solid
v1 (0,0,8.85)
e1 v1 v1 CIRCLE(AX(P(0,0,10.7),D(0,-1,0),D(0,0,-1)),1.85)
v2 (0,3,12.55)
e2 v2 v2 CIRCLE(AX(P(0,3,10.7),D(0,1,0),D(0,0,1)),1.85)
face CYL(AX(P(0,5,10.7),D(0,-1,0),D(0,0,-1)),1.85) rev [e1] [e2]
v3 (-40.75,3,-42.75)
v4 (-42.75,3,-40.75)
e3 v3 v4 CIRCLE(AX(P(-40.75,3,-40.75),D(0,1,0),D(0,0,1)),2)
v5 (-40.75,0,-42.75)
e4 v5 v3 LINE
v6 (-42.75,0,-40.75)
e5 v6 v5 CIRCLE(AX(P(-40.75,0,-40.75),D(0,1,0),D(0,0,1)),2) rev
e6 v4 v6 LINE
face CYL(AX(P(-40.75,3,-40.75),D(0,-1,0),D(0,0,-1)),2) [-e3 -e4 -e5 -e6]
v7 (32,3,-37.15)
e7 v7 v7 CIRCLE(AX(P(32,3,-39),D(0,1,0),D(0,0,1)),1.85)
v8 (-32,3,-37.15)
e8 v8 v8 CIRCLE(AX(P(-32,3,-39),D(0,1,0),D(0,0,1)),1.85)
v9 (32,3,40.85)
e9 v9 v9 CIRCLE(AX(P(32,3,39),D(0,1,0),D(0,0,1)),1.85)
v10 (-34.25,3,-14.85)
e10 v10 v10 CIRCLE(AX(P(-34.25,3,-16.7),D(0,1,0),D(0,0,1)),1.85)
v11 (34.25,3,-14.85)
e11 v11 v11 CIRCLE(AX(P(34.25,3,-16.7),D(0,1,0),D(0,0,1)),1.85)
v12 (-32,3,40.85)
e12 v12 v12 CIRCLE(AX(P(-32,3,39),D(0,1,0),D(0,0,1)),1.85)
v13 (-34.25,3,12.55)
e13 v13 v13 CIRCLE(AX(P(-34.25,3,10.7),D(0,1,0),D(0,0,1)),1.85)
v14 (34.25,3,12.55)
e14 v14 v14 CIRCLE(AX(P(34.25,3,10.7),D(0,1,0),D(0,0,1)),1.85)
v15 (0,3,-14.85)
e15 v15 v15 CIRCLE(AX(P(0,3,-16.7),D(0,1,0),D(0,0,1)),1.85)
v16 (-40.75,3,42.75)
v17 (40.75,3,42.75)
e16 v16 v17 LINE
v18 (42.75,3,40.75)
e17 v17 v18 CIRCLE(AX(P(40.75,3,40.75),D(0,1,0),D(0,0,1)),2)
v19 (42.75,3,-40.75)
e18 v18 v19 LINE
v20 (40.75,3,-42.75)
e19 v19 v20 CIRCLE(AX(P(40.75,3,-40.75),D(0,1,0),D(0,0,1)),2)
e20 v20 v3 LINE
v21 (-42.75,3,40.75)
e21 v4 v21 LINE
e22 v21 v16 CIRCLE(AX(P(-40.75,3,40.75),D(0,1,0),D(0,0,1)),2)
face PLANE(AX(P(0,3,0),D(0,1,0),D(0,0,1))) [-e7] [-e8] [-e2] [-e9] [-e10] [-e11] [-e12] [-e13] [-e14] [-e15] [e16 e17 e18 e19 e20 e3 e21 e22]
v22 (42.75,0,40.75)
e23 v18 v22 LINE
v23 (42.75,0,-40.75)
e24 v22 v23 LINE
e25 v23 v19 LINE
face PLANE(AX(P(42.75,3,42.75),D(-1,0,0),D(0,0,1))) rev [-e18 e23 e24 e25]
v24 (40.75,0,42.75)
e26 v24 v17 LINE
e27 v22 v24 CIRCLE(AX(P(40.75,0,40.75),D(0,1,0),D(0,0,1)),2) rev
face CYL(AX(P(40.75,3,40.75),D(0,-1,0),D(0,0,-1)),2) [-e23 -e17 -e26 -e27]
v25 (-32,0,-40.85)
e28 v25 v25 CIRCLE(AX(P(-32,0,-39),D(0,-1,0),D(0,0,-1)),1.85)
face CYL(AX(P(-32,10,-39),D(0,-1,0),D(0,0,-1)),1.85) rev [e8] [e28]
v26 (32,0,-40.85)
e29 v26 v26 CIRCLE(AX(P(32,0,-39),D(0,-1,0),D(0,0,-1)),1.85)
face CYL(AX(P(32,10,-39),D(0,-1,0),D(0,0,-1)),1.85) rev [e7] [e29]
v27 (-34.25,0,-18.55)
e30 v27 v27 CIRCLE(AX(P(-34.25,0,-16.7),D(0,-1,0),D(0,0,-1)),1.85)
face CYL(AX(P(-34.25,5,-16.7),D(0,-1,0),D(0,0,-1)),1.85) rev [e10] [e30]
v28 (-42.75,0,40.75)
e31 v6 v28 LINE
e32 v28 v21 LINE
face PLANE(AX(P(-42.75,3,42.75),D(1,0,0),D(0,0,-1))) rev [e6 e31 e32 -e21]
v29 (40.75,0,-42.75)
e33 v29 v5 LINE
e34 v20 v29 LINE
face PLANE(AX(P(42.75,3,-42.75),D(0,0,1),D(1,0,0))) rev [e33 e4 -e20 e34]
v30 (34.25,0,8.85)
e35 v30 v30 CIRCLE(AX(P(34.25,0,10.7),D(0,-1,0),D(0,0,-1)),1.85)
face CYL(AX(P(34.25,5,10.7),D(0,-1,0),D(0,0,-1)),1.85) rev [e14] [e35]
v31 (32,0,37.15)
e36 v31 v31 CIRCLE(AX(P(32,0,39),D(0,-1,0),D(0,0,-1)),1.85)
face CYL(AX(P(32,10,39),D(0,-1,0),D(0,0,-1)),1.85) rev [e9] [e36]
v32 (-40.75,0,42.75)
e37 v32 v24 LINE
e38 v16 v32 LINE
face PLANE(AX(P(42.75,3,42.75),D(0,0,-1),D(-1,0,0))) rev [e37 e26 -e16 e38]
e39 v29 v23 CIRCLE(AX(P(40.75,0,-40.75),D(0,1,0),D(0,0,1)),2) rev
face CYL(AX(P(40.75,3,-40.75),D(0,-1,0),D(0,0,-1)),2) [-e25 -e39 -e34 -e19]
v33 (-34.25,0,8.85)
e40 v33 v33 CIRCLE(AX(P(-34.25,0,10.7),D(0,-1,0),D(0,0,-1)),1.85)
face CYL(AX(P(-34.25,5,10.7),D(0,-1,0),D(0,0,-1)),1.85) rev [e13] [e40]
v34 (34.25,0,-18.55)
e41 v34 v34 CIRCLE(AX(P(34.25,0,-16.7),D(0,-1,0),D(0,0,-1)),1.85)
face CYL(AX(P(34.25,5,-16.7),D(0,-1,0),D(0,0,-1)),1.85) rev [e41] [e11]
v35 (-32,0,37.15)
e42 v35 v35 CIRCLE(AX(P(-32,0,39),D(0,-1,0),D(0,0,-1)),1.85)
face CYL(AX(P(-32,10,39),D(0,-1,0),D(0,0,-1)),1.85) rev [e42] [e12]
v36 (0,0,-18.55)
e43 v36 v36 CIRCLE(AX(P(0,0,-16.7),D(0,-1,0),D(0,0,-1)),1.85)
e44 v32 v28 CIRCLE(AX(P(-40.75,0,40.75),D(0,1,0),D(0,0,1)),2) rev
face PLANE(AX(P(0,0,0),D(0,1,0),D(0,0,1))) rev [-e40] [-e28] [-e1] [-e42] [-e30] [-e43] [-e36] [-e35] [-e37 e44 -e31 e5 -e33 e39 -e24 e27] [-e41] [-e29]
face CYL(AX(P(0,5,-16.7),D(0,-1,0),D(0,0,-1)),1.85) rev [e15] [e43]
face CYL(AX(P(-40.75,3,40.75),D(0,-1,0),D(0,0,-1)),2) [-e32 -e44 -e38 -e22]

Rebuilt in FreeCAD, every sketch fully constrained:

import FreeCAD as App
import Part
import Sketcher

V = App.Vector


def edges_at(feature, points):
    """Names of the edges that pass closest to the given points."""
    edges = feature.Shape.Edges
    near = lambda p: min(range(len(edges)), key=lambda i: edges[i].distToShape(Part.Vertex(*p))[0])
    return sorted({f"Edge{near(p) + 1}" for p in points})

doc = App.newDocument("Part")
body = doc.addObject("PartDesign::Body", "Body")

# Sketch on XZ plane
sketch1 = body.newObject("Sketcher::SketchObject", "Sketch")
sketch1.AttachmentSupport = (doc.getObject("XZ_Plane"), [""])
sketch1.MapMode = "FlatFace"
sketch1.addGeometry([
    Part.LineSegment(V(-43, -43, 0), V(-43, 43, 0)),
    Part.LineSegment(V(-43, 43, 0), V(43, 43, 0)),
    Part.LineSegment(V(43, 43, 0), V(43, -43, 0)),
    Part.LineSegment(V(43, -43, 0), V(-43, -43, 0)),
], False)
sketch1.addConstraint([
    Sketcher.Constraint("Coincident", 0, 2, 1, 1),
    Sketcher.Constraint("Coincident", 1, 2, 2, 1),
    Sketcher.Constraint("Coincident", 2, 2, 3, 1),
    Sketcher.Constraint("Coincident", 3, 2, 0, 1),
    Sketcher.Constraint("Vertical", 0),
    Sketcher.Constraint("Horizontal", 1),
    Sketcher.Constraint("Vertical", 2),
    Sketcher.Constraint("Horizontal", 3),
    Sketcher.Constraint("Symmetric", 0, 2, 2, 2, -1, 1),
    Sketcher.Constraint("Equal", 3, 0),
    Sketcher.Constraint("DistanceX", 1, 1, 1, 2, 85.5),
])
pad1 = body.newObject("PartDesign::Pad", "Pad")
pad1.Profile = sketch1
pad1.Length = 3
pad1.Reversed = True
doc.recompute()

fillet = body.newObject("PartDesign::Fillet", "Fillet")
fillet.Base = (pad1, edges_at(pad1, [
    (-42.75, 1.5, -42.75),
    (42.75, 1.5, -42.75),
    (42.75, 1.5, 42.75),
    (-42.75, 1.5, 42.75),
]))
fillet.Radius = 2

# Sketch on XZ plane
sketch2 = body.newObject("Sketcher::SketchObject", "Sketch001")
sketch2.AttachmentSupport = (doc.getObject("XZ_Plane"), [""])
sketch2.MapMode = "FlatFace"
sketch2.addGeometry([
    Part.Circle(V(-32, -39, 0), V(0, 0, 1), 1.9),
    Part.Circle(V(32, -39, 0), V(0, 0, 1), 1.9),
    Part.Circle(V(-32, 39, 0), V(0, 0, 1), 1.9),
    Part.Circle(V(32, 39, 0), V(0, 0, 1), 1.9),
], False)
sketch2.addConstraint([
    Sketcher.Constraint("Equal", 0, 1),
    Sketcher.Constraint("Equal", 1, 2),
    Sketcher.Constraint("Equal", 2, 3),
    Sketcher.Constraint("Symmetric", 1, 3, 2, 3, -1, 1),
    Sketcher.Constraint("Symmetric", 0, 3, 3, 3, -1, 1),
    Sketcher.Constraint("Symmetric", 0, 3, 1, 3, -2),
    Sketcher.Constraint("Diameter", 0, 3.7),
    Sketcher.Constraint("DistanceX", 0, 3, -1, 1, 32.0),
    Sketcher.Constraint("DistanceY", 0, 3, -1, 1, 39.0),
])
pocket1 = body.newObject("PartDesign::Pocket", "Pocket")
pocket1.Profile = sketch2
pocket1.Length = 10

# Sketch on XZ plane
sketch3 = body.newObject("Sketcher::SketchObject", "Sketch002")
sketch3.AttachmentSupport = (doc.getObject("XZ_Plane"), [""])
sketch3.MapMode = "FlatFace"
sketch3.addGeometry([
    Part.Circle(V(-34.2, -16.7, 0), V(0, 0, 1), 1.9),  # 0
    Part.Circle(V(0, -16.7, 0), V(0, 0, 1), 1.9),  # 1
    Part.Circle(V(34.2, -16.7, 0), V(0, 0, 1), 1.9),  # 2
    Part.Circle(V(0, 10.7, 0), V(0, 0, 1), 1.9),  # 3
    Part.Circle(V(-34.2, 10.7, 0), V(0, 0, 1), 1.9),  # 4
    Part.Circle(V(34.2, 10.7, 0), V(0, 0, 1), 1.9),  # 5
], False)
sketch3.addConstraint([
    Sketcher.Constraint("Equal", 0, 1),
    Sketcher.Constraint("Equal", 1, 2),
    Sketcher.Constraint("Equal", 2, 3),
    Sketcher.Constraint("Equal", 3, 4),
    Sketcher.Constraint("Equal", 4, 5),
    Sketcher.Constraint("Symmetric", 0, 3, 2, 3, -2),
    Sketcher.Constraint("Symmetric", 4, 3, 5, 3, -2),
    Sketcher.Constraint("PointOnObject", 1, 3, -2),
    Sketcher.Constraint("PointOnObject", 3, 3, -2),
    Sketcher.Constraint("Horizontal", 0, 3, 1, 3),
    Sketcher.Constraint("Horizontal", 3, 3, 4, 3),
    Sketcher.Constraint("Vertical", 0, 3, 4, 3),
    Sketcher.Constraint("Diameter", 0, 3.7),
    Sketcher.Constraint("DistanceY", 0, 3, -1, 1, 16.7),
    Sketcher.Constraint("DistanceY", -1, 1, 3, 3, 10.7),
    Sketcher.Constraint("DistanceX", 0, 3, 2, 3, 68.5),
])
pocket2 = body.newObject("PartDesign::Pocket", "Pocket001")
pocket2.Profile = sketch3
pocket2.Length = 5

doc.recompute()
